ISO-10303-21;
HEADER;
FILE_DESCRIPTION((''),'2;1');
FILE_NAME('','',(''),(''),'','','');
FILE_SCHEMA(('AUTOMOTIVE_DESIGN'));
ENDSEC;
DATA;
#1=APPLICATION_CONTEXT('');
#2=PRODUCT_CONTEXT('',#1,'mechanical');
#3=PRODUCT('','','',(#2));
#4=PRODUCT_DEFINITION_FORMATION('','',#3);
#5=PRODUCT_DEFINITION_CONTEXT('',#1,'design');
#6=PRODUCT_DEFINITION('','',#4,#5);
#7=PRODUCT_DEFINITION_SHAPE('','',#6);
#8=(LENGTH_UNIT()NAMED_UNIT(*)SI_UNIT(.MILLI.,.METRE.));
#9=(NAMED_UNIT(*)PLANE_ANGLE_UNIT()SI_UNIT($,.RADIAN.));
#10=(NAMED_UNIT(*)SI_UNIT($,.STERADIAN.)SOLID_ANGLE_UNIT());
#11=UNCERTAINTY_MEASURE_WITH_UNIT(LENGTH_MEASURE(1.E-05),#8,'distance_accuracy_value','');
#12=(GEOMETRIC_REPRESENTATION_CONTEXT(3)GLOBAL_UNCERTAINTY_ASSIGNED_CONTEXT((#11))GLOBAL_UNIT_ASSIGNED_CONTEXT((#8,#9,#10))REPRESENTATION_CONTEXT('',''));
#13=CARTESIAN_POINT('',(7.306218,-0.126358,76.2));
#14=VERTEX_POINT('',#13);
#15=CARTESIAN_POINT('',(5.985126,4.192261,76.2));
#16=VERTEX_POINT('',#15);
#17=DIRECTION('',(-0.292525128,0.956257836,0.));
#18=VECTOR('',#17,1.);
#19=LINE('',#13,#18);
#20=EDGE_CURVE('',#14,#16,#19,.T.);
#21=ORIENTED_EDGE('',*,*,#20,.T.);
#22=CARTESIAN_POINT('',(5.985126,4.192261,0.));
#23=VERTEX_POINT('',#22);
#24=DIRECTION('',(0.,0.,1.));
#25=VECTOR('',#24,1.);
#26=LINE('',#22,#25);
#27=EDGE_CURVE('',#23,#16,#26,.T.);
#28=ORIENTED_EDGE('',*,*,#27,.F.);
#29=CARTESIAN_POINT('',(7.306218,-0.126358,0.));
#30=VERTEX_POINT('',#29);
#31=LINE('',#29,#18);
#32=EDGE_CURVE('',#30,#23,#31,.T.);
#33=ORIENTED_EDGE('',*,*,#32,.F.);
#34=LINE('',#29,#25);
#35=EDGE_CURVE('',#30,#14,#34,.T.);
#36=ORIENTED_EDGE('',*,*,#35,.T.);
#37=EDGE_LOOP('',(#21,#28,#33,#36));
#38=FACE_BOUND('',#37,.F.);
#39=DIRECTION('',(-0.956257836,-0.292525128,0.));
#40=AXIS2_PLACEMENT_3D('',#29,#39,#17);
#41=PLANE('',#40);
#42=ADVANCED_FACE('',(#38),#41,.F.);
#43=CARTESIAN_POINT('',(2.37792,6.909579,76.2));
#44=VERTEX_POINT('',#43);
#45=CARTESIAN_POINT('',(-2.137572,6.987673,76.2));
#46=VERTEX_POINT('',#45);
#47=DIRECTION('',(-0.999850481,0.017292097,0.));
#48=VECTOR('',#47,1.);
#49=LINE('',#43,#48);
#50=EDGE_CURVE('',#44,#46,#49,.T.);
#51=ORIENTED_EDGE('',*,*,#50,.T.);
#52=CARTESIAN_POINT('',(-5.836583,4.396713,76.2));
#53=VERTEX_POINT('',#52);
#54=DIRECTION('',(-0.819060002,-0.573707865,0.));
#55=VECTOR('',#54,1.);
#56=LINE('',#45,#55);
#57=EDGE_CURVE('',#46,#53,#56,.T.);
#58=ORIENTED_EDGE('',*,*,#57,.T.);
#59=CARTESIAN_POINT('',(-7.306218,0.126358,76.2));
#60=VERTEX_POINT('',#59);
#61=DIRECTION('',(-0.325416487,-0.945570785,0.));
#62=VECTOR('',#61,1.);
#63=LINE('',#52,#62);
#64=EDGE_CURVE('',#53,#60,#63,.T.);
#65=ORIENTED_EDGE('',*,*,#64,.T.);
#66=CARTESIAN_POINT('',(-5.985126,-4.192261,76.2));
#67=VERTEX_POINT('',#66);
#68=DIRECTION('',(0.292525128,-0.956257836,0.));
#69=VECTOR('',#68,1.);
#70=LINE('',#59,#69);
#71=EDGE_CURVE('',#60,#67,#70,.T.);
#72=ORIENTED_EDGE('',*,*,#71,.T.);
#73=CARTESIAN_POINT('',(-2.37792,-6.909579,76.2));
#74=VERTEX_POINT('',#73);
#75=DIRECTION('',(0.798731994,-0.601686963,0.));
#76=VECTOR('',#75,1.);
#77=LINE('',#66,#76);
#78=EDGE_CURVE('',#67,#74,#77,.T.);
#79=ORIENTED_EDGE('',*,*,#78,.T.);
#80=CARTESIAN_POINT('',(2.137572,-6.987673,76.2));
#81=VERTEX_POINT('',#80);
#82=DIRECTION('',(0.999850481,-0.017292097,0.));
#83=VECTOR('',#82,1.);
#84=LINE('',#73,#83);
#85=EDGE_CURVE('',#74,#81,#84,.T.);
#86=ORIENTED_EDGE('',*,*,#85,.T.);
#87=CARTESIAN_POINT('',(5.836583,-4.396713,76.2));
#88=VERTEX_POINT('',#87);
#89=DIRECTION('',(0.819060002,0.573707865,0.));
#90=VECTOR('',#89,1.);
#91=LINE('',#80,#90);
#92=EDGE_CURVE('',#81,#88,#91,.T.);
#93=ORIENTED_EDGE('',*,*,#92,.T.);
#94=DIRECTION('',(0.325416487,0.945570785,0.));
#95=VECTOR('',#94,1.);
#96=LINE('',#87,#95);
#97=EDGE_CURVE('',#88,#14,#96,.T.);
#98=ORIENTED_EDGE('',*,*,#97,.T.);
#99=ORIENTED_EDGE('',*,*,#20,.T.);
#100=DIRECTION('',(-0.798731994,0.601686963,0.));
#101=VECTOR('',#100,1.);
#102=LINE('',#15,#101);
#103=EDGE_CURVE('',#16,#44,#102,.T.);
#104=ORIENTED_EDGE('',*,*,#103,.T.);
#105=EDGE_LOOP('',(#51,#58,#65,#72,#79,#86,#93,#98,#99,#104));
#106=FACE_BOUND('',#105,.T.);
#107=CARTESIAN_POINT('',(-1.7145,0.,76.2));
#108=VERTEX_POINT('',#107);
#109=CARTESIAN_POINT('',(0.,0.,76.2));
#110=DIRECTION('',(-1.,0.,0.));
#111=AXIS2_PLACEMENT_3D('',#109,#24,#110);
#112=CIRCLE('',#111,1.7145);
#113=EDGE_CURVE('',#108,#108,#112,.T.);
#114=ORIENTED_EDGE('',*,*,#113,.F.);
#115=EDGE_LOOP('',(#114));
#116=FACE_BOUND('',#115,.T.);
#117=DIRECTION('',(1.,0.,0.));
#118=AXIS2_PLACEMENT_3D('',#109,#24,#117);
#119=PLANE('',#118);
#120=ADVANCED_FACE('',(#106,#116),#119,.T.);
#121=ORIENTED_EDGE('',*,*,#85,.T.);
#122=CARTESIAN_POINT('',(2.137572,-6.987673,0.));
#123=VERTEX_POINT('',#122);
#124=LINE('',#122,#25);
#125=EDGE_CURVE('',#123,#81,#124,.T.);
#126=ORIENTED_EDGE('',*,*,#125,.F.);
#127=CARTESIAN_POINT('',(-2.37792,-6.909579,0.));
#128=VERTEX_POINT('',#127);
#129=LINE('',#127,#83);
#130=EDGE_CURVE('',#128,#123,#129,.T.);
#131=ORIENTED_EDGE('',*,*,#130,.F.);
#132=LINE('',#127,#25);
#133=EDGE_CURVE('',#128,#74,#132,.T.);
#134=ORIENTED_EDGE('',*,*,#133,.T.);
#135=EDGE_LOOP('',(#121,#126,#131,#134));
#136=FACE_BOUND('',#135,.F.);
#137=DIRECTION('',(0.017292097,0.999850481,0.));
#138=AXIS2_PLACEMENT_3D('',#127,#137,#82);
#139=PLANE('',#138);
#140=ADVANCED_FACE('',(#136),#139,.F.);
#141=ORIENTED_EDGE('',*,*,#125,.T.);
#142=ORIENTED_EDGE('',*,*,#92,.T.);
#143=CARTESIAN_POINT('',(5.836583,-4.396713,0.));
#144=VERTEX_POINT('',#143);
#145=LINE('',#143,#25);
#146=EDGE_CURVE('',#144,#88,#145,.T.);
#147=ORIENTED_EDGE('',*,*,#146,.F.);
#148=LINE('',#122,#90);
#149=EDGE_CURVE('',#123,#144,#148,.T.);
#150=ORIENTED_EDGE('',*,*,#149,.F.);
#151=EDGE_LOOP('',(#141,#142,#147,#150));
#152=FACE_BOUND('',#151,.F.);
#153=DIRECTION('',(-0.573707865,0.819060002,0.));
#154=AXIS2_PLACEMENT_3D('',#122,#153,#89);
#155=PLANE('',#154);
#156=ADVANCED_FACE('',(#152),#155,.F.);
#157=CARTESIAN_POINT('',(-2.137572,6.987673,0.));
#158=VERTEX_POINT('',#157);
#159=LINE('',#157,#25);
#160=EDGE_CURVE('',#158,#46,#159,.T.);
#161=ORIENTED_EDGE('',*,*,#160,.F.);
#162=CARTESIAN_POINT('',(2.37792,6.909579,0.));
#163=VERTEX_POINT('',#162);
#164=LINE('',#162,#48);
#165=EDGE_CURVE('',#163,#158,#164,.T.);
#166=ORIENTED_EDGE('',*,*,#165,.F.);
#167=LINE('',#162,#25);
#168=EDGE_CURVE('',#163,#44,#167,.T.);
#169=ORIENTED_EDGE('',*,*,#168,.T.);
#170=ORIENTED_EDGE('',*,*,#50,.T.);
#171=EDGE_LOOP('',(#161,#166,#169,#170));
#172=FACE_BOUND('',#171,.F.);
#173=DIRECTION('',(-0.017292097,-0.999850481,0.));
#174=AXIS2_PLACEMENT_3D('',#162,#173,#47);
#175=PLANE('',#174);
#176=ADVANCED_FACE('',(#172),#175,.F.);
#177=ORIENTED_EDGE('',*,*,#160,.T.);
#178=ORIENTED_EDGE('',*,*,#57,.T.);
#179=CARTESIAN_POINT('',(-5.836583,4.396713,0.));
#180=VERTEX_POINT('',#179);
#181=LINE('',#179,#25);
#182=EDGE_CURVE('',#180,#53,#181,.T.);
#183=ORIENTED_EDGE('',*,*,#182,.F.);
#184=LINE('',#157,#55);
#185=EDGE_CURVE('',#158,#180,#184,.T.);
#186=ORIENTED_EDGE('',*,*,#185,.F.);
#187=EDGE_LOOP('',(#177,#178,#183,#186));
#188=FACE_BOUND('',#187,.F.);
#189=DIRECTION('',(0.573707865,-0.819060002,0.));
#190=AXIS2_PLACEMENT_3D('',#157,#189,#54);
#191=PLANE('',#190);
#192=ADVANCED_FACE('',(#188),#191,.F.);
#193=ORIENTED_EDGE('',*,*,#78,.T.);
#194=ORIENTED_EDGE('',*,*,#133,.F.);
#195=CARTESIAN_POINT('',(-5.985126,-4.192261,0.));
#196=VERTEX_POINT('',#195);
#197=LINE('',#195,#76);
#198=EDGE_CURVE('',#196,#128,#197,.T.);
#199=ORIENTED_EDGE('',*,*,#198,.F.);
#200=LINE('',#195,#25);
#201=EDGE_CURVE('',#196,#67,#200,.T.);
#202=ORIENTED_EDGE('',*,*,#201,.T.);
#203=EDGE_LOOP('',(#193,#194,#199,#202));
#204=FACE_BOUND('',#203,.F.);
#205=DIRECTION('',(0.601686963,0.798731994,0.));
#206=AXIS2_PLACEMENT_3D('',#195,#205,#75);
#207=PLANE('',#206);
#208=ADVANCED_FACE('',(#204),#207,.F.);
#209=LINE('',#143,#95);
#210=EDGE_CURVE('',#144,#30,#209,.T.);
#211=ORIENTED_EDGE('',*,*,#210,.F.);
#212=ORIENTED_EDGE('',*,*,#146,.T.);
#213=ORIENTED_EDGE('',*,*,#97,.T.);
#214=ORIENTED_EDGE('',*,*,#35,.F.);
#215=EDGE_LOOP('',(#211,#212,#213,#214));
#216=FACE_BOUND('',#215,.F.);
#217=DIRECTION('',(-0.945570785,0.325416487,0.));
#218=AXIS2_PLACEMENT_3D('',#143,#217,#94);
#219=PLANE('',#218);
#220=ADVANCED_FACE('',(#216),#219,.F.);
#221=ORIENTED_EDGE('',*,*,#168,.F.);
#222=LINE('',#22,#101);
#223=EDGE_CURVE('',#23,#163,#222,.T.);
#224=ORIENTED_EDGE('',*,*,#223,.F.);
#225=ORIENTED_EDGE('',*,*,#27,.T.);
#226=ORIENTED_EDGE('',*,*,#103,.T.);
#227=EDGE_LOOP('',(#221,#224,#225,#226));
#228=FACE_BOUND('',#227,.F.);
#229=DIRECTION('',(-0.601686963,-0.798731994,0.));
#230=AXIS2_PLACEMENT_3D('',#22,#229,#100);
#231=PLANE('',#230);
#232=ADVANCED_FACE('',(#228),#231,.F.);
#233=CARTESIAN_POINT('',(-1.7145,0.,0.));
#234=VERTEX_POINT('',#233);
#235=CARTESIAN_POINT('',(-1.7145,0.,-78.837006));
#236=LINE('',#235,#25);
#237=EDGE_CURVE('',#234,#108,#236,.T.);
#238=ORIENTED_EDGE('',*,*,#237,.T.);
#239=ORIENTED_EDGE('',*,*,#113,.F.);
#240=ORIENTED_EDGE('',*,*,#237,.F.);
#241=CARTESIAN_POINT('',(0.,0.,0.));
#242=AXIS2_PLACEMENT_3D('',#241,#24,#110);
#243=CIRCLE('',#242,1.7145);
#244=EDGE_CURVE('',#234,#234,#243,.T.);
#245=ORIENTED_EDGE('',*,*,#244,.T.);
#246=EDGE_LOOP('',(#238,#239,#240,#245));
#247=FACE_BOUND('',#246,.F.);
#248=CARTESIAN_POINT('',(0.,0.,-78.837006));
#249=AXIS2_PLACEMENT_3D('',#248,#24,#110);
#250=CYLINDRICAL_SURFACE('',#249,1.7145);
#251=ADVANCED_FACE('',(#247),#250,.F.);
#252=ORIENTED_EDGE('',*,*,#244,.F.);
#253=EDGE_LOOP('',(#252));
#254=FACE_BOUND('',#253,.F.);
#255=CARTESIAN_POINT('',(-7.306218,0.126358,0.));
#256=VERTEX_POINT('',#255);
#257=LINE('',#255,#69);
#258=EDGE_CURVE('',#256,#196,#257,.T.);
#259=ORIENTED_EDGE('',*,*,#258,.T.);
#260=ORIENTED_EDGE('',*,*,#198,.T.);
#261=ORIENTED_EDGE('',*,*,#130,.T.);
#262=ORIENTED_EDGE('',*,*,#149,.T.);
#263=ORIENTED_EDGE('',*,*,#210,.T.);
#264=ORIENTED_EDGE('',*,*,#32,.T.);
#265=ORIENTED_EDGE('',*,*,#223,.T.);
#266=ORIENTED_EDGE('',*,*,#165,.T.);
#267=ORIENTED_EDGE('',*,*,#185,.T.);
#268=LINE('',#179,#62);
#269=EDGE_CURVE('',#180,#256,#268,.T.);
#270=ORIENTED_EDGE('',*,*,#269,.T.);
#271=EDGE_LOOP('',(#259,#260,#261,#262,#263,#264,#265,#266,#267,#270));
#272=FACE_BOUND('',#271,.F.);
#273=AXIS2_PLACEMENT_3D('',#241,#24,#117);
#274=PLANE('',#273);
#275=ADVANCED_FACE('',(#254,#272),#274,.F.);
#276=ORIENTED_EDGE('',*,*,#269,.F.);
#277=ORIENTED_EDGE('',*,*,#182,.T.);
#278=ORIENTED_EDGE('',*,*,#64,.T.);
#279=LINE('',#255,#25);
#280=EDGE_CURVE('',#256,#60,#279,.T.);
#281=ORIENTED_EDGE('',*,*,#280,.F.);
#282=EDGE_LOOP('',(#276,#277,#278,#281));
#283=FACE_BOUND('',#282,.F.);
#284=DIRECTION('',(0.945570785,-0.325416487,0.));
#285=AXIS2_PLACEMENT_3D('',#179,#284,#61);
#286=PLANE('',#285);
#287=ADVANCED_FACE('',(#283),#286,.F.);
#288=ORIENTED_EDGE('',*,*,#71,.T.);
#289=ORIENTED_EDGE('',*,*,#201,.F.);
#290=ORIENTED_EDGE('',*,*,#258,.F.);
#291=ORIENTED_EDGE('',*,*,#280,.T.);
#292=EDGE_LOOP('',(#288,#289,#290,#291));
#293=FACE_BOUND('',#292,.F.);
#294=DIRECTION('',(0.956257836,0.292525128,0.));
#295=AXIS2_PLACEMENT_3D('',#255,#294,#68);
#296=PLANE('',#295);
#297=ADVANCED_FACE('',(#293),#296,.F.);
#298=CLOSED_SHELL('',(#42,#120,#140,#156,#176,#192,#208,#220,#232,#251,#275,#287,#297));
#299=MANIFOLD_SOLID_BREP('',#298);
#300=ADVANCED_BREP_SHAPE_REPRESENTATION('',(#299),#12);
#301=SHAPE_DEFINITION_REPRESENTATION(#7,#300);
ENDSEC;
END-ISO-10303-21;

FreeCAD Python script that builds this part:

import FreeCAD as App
import Part
import Sketcher
from FreeCAD import Vector
Q = App.Units.Quantity


def add_polygon(sketch, points):
    """Adds a closed chain of lines whose ends are joined by coincident constraints."""
    first, n = sketch.GeometryCount, len(points)
    for a, b in zip(points, points[1:] + points[:1]):
        sketch.addGeometry(Part.LineSegment(App.Vector(*a, 0), App.Vector(*b, 0)), False)
    for i in range(n):
        sketch.addConstraint(Sketcher.Constraint("Coincident", first + i, 2, first + (i + 1) % n, 1))

doc = App.newDocument("Part")
body = doc.addObject("PartDesign::Body", "Body")

sketch1 = body.newObject("Sketcher::SketchObject", "Sketch")
sketch1.AttachmentSupport = (doc.getObject("XY_Plane"), [""])
sketch1.MapMode = "FlatFace"
add_polygon(sketch1, [(-7.3, 0.1), (-6, -4.2), (-2.4, -6.9), (2.1, -7), (5.8, -4.4), (7.3, -0.1), (6, 4.2), (2.4, 6.9), (-2.1, 7), (-5.8, 4.4)])
sketch1.addConstraint([
    Sketcher.Constraint("Symmetric", 0, 2, 5, 2, -1, 1),
    Sketcher.Constraint("Symmetric", 1, 2, 6, 2, -1, 1),
    Sketcher.Constraint("Symmetric", 2, 2, 7, 2, -1, 1),
    Sketcher.Constraint("Symmetric", 3, 2, 8, 2, -1, 1),
    Sketcher.Constraint("Symmetric", 4, 2, 9, 2, -1, 1),
    Sketcher.Constraint("Equal", 0, 1),
    Sketcher.Constraint("Equal", 1, 2),
    Sketcher.Constraint("Equal", 2, 3),
    Sketcher.Constraint("Equal", 3, 4),
    Sketcher.Constraint("DistanceY", 0, 2, -1, 1, Q("4.192261 mm")),
    Sketcher.Constraint("DistanceX", 1, 2, -1, 1, Q("2.37792 mm")),
    Sketcher.Constraint("DistanceY", 1, 2, -1, 1, Q("6.909579 mm")),
    Sketcher.Constraint("DistanceX", -1, 1, 2, 2, Q("2.137572 mm")),
    Sketcher.Constraint("DistanceX", -1, 1, 4, 2, Q("7.306218 mm")),
    Sketcher.Constraint("DistanceY", 2, 2, 0, 2, Q("2.795412 mm")),
])
pad1 = body.newObject("PartDesign::Pad", "Pad")
pad1.Profile = sketch1
pad1.Length = Q("3 in")

sketch2 = body.newObject("Sketcher::SketchObject", "Sketch001")
sketch2.AttachmentSupport = (doc.getObject("XY_Plane"), [""])
sketch2.MapMode = "FlatFace"
sketch2.addGeometry(Part.Circle(Vector(0, 0, 0), Vector(0, 0, 1), 1.7), False)
sketch2.addConstraint([
    Sketcher.Constraint("Coincident", 0, 3, -1, 1),
    Sketcher.Constraint("Diameter", 0, Q("0.135 in")),
])
doc.recompute()
hole = body.newObject("PartDesign::Hole", "Hole")
hole.Profile = sketch2
hole.ThreadType = "None"
hole.Diameter = Q("0.135 in")
hole.DepthType = "ThroughAll"
hole.Reversed = True

doc.recompute()
